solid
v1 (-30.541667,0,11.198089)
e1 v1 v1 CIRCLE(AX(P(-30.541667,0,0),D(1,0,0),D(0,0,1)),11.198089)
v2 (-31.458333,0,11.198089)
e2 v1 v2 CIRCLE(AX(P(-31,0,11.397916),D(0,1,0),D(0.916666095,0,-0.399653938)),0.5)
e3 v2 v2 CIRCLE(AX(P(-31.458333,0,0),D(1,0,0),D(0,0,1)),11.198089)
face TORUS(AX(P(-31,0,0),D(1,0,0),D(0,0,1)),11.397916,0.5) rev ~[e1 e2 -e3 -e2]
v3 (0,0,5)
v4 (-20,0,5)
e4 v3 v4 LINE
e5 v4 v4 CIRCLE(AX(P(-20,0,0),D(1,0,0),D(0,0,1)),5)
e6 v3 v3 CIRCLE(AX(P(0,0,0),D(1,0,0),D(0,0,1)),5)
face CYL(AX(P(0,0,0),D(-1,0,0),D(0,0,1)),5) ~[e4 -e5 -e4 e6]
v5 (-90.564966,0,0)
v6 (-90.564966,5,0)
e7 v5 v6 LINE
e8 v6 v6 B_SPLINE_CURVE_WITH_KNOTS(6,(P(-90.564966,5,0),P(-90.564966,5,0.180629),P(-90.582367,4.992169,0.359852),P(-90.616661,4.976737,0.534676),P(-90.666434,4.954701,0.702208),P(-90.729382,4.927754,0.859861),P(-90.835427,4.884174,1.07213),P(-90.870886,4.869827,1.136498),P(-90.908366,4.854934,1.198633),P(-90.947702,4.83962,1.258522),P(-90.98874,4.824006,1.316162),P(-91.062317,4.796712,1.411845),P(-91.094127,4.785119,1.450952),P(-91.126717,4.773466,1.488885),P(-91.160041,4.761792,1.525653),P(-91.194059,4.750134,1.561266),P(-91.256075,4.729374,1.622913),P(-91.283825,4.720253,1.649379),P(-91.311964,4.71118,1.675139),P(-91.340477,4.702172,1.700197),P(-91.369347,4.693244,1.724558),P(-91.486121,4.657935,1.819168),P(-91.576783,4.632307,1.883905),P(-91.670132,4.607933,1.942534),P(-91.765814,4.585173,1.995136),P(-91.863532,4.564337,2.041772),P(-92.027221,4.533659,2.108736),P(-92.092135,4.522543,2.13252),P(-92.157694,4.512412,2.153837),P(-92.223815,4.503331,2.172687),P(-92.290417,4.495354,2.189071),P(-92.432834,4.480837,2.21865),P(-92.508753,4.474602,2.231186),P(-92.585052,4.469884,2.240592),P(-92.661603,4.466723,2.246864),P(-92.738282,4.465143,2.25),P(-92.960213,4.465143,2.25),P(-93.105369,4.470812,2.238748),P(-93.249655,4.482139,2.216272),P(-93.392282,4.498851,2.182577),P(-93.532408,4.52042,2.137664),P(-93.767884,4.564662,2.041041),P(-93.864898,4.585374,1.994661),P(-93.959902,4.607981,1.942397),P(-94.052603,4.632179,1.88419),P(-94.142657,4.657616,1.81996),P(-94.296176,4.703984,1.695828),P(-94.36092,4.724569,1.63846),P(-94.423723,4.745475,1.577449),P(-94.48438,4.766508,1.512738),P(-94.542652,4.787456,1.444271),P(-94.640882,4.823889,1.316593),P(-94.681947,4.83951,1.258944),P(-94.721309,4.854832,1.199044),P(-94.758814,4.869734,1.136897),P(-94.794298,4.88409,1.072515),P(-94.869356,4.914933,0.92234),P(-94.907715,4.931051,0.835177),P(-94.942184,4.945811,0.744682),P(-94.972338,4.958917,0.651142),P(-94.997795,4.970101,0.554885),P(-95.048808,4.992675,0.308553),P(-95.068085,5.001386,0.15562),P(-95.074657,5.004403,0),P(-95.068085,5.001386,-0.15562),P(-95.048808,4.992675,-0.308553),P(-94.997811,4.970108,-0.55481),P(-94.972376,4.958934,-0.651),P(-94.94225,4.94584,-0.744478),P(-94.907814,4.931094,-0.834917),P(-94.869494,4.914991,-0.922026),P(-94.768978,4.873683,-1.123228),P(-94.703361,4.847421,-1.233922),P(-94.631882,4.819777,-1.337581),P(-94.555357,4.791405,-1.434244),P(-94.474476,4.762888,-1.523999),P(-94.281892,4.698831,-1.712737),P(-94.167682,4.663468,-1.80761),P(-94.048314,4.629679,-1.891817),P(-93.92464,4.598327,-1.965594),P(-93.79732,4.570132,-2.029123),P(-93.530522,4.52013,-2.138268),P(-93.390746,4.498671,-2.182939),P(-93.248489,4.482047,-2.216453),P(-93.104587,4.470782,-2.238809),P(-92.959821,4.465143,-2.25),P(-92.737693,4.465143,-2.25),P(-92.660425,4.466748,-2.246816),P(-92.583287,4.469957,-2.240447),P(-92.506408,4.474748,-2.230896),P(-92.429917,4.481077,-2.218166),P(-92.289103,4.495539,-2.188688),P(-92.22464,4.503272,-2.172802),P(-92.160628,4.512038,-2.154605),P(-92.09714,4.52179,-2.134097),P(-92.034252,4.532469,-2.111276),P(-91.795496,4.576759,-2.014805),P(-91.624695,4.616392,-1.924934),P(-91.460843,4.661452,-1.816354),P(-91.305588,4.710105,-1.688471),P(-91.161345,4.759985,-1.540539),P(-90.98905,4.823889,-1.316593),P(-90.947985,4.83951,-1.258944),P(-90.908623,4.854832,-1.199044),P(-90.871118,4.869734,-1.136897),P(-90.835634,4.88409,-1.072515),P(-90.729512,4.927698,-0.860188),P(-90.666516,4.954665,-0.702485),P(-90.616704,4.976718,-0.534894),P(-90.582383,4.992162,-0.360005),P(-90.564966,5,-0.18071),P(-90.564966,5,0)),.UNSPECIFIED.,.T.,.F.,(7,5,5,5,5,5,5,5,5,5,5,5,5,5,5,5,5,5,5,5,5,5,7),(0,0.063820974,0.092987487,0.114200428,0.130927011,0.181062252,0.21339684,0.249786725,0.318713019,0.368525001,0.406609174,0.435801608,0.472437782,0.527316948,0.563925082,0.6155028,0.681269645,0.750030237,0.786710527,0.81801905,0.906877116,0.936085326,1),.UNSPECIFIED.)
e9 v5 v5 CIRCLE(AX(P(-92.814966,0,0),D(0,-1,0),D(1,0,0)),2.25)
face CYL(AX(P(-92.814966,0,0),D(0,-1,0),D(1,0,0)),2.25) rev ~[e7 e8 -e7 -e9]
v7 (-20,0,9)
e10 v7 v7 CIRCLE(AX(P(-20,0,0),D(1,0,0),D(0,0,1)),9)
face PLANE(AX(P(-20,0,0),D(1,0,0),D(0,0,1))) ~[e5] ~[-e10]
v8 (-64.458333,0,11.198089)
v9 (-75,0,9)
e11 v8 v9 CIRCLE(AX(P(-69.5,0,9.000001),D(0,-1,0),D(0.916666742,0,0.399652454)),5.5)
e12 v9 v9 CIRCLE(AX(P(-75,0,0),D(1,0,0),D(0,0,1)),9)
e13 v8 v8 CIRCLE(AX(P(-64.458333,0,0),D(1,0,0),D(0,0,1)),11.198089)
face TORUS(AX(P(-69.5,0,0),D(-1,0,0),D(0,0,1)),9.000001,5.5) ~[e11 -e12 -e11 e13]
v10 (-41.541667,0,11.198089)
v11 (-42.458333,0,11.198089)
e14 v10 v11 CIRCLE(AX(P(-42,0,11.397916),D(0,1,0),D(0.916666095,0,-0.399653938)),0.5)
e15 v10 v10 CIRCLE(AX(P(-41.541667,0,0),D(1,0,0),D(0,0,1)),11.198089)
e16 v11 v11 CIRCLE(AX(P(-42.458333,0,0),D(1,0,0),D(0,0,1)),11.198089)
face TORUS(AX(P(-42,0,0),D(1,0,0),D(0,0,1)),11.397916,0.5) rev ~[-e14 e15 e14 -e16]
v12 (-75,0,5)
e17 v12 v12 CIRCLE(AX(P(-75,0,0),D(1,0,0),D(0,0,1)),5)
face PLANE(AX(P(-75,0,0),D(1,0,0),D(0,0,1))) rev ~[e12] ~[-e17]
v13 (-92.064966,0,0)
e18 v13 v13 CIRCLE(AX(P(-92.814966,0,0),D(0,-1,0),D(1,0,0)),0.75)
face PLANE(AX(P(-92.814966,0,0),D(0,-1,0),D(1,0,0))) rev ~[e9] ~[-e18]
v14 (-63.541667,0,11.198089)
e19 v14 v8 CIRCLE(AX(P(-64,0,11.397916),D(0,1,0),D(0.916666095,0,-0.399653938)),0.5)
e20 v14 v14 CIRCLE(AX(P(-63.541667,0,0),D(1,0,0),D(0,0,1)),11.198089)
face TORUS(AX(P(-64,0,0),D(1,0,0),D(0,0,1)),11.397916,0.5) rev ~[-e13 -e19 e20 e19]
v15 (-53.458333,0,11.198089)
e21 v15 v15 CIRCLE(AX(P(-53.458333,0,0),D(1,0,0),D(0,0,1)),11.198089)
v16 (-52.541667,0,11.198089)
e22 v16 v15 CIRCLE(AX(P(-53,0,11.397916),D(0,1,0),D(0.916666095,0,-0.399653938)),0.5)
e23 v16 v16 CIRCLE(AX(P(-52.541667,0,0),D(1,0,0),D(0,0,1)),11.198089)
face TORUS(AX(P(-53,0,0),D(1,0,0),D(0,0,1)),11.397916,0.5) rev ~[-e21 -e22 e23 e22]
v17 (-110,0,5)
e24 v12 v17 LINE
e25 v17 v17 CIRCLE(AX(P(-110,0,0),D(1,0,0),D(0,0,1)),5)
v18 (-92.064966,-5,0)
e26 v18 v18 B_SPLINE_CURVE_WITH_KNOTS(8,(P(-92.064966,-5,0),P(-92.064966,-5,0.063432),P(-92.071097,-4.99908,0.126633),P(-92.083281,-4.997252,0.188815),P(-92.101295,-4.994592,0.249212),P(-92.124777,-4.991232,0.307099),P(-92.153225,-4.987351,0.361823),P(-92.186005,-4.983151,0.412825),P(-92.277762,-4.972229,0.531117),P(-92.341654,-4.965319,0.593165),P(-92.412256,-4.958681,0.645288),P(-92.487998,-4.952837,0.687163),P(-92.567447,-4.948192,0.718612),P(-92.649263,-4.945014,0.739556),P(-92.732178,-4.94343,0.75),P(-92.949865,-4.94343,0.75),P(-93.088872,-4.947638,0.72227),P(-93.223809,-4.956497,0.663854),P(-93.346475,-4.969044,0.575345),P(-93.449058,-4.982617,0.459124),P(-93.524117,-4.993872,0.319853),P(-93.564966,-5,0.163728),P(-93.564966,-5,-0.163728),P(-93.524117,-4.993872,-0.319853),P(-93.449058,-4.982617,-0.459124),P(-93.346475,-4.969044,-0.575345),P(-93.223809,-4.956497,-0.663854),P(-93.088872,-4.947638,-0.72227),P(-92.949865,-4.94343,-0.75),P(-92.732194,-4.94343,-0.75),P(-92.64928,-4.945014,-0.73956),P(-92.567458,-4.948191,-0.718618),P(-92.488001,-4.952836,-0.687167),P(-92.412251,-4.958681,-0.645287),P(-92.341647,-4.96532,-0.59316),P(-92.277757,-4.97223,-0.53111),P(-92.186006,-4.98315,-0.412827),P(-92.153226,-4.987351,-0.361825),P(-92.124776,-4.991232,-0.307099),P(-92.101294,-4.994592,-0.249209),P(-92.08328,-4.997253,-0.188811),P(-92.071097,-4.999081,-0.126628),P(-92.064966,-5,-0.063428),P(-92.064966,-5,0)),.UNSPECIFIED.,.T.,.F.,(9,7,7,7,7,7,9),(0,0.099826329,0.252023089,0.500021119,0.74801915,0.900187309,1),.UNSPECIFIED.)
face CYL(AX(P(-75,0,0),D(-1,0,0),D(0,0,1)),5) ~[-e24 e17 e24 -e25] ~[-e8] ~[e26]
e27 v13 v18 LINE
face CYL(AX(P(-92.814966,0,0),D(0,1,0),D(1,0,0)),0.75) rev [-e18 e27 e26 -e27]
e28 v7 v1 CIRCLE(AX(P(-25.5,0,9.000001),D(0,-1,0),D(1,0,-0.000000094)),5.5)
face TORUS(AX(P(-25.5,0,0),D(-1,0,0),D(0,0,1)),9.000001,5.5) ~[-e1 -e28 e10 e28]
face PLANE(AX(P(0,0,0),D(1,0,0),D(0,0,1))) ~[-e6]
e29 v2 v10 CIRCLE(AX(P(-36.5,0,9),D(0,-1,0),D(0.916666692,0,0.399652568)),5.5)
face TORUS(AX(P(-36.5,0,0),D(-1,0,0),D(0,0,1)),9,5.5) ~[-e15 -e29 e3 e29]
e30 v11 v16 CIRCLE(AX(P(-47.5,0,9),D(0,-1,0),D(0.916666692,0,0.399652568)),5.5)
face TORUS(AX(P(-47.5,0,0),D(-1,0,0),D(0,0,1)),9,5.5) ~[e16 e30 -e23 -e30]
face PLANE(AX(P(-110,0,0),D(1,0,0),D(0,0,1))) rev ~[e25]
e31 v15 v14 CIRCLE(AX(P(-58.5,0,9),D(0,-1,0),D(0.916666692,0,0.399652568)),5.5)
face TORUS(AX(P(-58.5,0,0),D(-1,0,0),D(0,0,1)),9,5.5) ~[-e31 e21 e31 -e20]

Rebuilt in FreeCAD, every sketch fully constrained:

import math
import FreeCAD as App
import Part
import Sketcher
Q = App.Units.Quantity

doc = App.newDocument("Part")
params = doc.addObject("Spreadsheet::Sheet", "Params")
for row, (alias, value) in enumerate([
    ("sketch1_radius", "5.5 mm"),
    ("sketch1_radius2", "0.5 mm"),
    ("sketch1_width", "110 mm"),
    ("sketch1_width2", "20 mm"),
    ("sketch1_width3", "35 mm"),
    ("revolution_angle", "360 deg"),
    ("sketch2_diameter", "4.5 mm"),
    ("sketch2_diameter2", "1.5 mm"),
    ("pocket1_length", "25 mm"),
    ("sketch3_diameter", "1.5 mm"),
], start=1):
    params.set(f"A{row}", alias)
    params.set(f"B{row}", "=" + value)
    params.setAlias(f"B{row}", alias)

body = doc.addObject("PartDesign::Body", "Body")

# Sketch on XZ plane
sketch1 = body.newObject("Sketcher::SketchObject", "Sketch")
sketch1.AttachmentSupport = (doc.getObject("XZ_Plane"), [""])
sketch1.MapMode = "FlatFace"
sketch1.addGeometry([
    Part.LineSegment(App.Vector(-110, 5, 0), App.Vector(-110, 0, 0)),  # 0
    Part.LineSegment(App.Vector(-110, 0, 0), App.Vector(0, 0, 0)),  # 1
    Part.LineSegment(App.Vector(0, 0, 0), App.Vector(0, 5, 0)),  # 2
    Part.LineSegment(App.Vector(0, 5, 0), App.Vector(-20, 5, 0)),  # 3
    Part.LineSegment(App.Vector(-20, 5, 0), App.Vector(-20, 9, 0)),  # 4
    Part.ArcOfCircle(Part.Circle(App.Vector(-25.5, 9, 0), App.Vector(0, 0, 1), 5.5), math.radians(0), math.radians(156)),  # 5
    Part.ArcOfCircle(Part.Circle(App.Vector(-31, 11.4, 0), App.Vector(0, 0, 1), 0.5), math.radians(-156), math.radians(-24)),  # 6
    Part.ArcOfCircle(Part.Circle(App.Vector(-36.5, 9, 0), App.Vector(0, 0, 1), 5.5), math.radians(24), math.radians(156)),  # 7
    Part.ArcOfCircle(Part.Circle(App.Vector(-42, 11.4, 0), App.Vector(0, 0, 1), 0.5), math.radians(-156), math.radians(-24)),  # 8
    Part.ArcOfCircle(Part.Circle(App.Vector(-47.5, 9, 0), App.Vector(0, 0, 1), 5.5), math.radians(24), math.radians(156)),  # 9
    Part.ArcOfCircle(Part.Circle(App.Vector(-53, 11.4, 0), App.Vector(0, 0, 1), 0.5), math.radians(-156), math.radians(-24)),  # 10
    Part.ArcOfCircle(Part.Circle(App.Vector(-58.5, 9, 0), App.Vector(0, 0, 1), 5.5), math.radians(24), math.radians(156)),  # 11
    Part.ArcOfCircle(Part.Circle(App.Vector(-64, 11.4, 0), App.Vector(0, 0, 1), 0.5), math.radians(-156), math.radians(-24)),  # 12
    Part.ArcOfCircle(Part.Circle(App.Vector(-69.5, 9, 0), App.Vector(0, 0, 1), 5.5), math.radians(24), math.radians(180)),  # 13
    Part.LineSegment(App.Vector(-75, 9, 0), App.Vector(-75, 5, 0)),  # 14
    Part.LineSegment(App.Vector(-75, 5, 0), App.Vector(-110, 5, 0)),  # 15
], False)
sketch1.addConstraint([
    Sketcher.Constraint("Coincident", 0, 2, 1, 1),
    Sketcher.Constraint("Coincident", 1, 2, 2, 1),
    Sketcher.Constraint("Coincident", 2, 2, 3, 1),
    Sketcher.Constraint("Coincident", 3, 2, 4, 1),
    Sketcher.Constraint("Tangent", 4, 2, 5, 1),
    Sketcher.Constraint("Tangent", 5, 2, 6, 2),
    Sketcher.Constraint("Tangent", 6, 1, 7, 1),
    Sketcher.Constraint("Tangent", 7, 2, 8, 2),
    Sketcher.Constraint("Tangent", 8, 1, 9, 1),
    Sketcher.Constraint("Tangent", 9, 2, 10, 2),
    Sketcher.Constraint("Tangent", 10, 1, 11, 1),
    Sketcher.Constraint("Tangent", 11, 2, 12, 2),
    Sketcher.Constraint("Tangent", 12, 1, 13, 1),
    Sketcher.Constraint("Tangent", 13, 2, 14, 1),
    Sketcher.Constraint("Coincident", 14, 2, 15, 1),
    Sketcher.Constraint("Coincident", 15, 2, 0, 1),
    Sketcher.Constraint("Vertical", 0),
    Sketcher.Constraint("Horizontal", 1),
    Sketcher.Constraint("Vertical", 2),
    Sketcher.Constraint("Horizontal", 3),
    Sketcher.Constraint("Vertical", 4),
    Sketcher.Constraint("Vertical", 14),
    Sketcher.Constraint("Horizontal", 15),
    Sketcher.Constraint("Coincident", 1, 2, -1, 1),
    Sketcher.Constraint("Equal", 5, 7),
    Sketcher.Constraint("Equal", 6, 8),
    Sketcher.Constraint("Equal", 7, 9),
    Sketcher.Constraint("Equal", 8, 10),
    Sketcher.Constraint("Equal", 9, 11),
    Sketcher.Constraint("Equal", 10, 12),
    Sketcher.Constraint("Equal", 11, 13),
    Sketcher.Constraint("Horizontal", 5, 3, 7, 3),
    Sketcher.Constraint("Horizontal", 6, 3, 8, 3),
    Sketcher.Constraint("Horizontal", 7, 3, 9, 3),
    Sketcher.Constraint("Horizontal", 8, 3, 10, 3),
    Sketcher.Constraint("Horizontal", 9, 3, 11, 3),
    Sketcher.Constraint("Horizontal", 10, 3, 12, 3),
    Sketcher.Constraint("Horizontal", 11, 3, 13, 3),
    Sketcher.Constraint("Horizontal", 3, 2, 14, 2),
    Sketcher.Constraint("Radius", 5, Q("5.5 mm")),
    Sketcher.Constraint("Radius", 6, Q("0.5 mm")),
    Sketcher.Constraint("DistanceX", 1, 1, 1, 2, Q("110 mm")),
    Sketcher.Constraint("DistanceX", 3, 2, 3, 1, Q("20 mm")),
    Sketcher.Constraint("DistanceX", 15, 2, 15, 1, Q("35 mm")),
    Sketcher.Constraint("DistanceY", 0, 2, 0, 1, Q("5 mm")),
    Sketcher.Constraint("DistanceY", 4, 1, 4, 2, Q("4 mm")),
])
sketch1.setExpression("Constraints[39]", "Params.sketch1_radius")
sketch1.setExpression("Constraints[40]", "Params.sketch1_radius2")
sketch1.setExpression("Constraints[41]", "Params.sketch1_width")
sketch1.setExpression("Constraints[42]", "Params.sketch1_width2")
sketch1.setExpression("Constraints[43]", "Params.sketch1_width3")
revolution = body.newObject("PartDesign::Revolution", "Revolution")
revolution.Profile = sketch1
revolution.ReferenceAxis = (sketch1, ["H_Axis"])
revolution.setExpression("Angle", "Params.revolution_angle")

# Sketch on XZ plane
sketch2 = body.newObject("Sketcher::SketchObject", "Sketch001")
sketch2.AttachmentSupport = (doc.getObject("XZ_Plane"), [""])
sketch2.MapMode = "FlatFace"
sketch2.addGeometry([
    Part.Circle(App.Vector(-92.8, 0, 0), App.Vector(0, 0, 1), 2.2),
    Part.Circle(App.Vector(-92.8, 0, 0), App.Vector(0, 0, 1), 0.8),
], False)
sketch2.addConstraint([
    Sketcher.Constraint("Coincident", 1, 3, 0, 3),
    Sketcher.Constraint("PointOnObject", 0, 3, -1),
    Sketcher.Constraint("Diameter", 0, Q("4.5 mm")),
    Sketcher.Constraint("Diameter", 1, Q("1.5 mm")),
    Sketcher.Constraint("DistanceX", 0, 3, -1, 1, Q("92.814966 mm")),
])
sketch2.setExpression("Constraints[2]", "Params.sketch2_diameter")
sketch2.setExpression("Constraints[3]", "Params.sketch2_diameter2")
pocket1 = body.newObject("PartDesign::Pocket", "Pocket")
pocket1.Profile = sketch2
pocket1.setExpression("Length", "Params.pocket1_length")

# Sketch on XZ plane
sketch3 = body.newObject("Sketcher::SketchObject", "Sketch002")
sketch3.AttachmentSupport = (doc.getObject("XZ_Plane"), [""])
sketch3.MapMode = "FlatFace"
sketch3.addGeometry(Part.Circle(App.Vector(-92.8, 0, 0), App.Vector(0, 0, 1), 0.8), False)
sketch3.addConstraint([
    Sketcher.Constraint("PointOnObject", 0, 3, -1),
    Sketcher.Constraint("Diameter", 0, Q("1.5 mm")),
    Sketcher.Constraint("DistanceX", 0, 3, -1, 1, Q("92.814966 mm")),
])
sketch3.setExpression("Constraints[1]", "Params.sketch3_diameter")
pocket2 = body.newObject("PartDesign::Pocket", "Pocket001")
pocket2.Profile = sketch3
pocket2.Type = "ThroughAll"
pocket2.Midplane = True

doc.recompute()
